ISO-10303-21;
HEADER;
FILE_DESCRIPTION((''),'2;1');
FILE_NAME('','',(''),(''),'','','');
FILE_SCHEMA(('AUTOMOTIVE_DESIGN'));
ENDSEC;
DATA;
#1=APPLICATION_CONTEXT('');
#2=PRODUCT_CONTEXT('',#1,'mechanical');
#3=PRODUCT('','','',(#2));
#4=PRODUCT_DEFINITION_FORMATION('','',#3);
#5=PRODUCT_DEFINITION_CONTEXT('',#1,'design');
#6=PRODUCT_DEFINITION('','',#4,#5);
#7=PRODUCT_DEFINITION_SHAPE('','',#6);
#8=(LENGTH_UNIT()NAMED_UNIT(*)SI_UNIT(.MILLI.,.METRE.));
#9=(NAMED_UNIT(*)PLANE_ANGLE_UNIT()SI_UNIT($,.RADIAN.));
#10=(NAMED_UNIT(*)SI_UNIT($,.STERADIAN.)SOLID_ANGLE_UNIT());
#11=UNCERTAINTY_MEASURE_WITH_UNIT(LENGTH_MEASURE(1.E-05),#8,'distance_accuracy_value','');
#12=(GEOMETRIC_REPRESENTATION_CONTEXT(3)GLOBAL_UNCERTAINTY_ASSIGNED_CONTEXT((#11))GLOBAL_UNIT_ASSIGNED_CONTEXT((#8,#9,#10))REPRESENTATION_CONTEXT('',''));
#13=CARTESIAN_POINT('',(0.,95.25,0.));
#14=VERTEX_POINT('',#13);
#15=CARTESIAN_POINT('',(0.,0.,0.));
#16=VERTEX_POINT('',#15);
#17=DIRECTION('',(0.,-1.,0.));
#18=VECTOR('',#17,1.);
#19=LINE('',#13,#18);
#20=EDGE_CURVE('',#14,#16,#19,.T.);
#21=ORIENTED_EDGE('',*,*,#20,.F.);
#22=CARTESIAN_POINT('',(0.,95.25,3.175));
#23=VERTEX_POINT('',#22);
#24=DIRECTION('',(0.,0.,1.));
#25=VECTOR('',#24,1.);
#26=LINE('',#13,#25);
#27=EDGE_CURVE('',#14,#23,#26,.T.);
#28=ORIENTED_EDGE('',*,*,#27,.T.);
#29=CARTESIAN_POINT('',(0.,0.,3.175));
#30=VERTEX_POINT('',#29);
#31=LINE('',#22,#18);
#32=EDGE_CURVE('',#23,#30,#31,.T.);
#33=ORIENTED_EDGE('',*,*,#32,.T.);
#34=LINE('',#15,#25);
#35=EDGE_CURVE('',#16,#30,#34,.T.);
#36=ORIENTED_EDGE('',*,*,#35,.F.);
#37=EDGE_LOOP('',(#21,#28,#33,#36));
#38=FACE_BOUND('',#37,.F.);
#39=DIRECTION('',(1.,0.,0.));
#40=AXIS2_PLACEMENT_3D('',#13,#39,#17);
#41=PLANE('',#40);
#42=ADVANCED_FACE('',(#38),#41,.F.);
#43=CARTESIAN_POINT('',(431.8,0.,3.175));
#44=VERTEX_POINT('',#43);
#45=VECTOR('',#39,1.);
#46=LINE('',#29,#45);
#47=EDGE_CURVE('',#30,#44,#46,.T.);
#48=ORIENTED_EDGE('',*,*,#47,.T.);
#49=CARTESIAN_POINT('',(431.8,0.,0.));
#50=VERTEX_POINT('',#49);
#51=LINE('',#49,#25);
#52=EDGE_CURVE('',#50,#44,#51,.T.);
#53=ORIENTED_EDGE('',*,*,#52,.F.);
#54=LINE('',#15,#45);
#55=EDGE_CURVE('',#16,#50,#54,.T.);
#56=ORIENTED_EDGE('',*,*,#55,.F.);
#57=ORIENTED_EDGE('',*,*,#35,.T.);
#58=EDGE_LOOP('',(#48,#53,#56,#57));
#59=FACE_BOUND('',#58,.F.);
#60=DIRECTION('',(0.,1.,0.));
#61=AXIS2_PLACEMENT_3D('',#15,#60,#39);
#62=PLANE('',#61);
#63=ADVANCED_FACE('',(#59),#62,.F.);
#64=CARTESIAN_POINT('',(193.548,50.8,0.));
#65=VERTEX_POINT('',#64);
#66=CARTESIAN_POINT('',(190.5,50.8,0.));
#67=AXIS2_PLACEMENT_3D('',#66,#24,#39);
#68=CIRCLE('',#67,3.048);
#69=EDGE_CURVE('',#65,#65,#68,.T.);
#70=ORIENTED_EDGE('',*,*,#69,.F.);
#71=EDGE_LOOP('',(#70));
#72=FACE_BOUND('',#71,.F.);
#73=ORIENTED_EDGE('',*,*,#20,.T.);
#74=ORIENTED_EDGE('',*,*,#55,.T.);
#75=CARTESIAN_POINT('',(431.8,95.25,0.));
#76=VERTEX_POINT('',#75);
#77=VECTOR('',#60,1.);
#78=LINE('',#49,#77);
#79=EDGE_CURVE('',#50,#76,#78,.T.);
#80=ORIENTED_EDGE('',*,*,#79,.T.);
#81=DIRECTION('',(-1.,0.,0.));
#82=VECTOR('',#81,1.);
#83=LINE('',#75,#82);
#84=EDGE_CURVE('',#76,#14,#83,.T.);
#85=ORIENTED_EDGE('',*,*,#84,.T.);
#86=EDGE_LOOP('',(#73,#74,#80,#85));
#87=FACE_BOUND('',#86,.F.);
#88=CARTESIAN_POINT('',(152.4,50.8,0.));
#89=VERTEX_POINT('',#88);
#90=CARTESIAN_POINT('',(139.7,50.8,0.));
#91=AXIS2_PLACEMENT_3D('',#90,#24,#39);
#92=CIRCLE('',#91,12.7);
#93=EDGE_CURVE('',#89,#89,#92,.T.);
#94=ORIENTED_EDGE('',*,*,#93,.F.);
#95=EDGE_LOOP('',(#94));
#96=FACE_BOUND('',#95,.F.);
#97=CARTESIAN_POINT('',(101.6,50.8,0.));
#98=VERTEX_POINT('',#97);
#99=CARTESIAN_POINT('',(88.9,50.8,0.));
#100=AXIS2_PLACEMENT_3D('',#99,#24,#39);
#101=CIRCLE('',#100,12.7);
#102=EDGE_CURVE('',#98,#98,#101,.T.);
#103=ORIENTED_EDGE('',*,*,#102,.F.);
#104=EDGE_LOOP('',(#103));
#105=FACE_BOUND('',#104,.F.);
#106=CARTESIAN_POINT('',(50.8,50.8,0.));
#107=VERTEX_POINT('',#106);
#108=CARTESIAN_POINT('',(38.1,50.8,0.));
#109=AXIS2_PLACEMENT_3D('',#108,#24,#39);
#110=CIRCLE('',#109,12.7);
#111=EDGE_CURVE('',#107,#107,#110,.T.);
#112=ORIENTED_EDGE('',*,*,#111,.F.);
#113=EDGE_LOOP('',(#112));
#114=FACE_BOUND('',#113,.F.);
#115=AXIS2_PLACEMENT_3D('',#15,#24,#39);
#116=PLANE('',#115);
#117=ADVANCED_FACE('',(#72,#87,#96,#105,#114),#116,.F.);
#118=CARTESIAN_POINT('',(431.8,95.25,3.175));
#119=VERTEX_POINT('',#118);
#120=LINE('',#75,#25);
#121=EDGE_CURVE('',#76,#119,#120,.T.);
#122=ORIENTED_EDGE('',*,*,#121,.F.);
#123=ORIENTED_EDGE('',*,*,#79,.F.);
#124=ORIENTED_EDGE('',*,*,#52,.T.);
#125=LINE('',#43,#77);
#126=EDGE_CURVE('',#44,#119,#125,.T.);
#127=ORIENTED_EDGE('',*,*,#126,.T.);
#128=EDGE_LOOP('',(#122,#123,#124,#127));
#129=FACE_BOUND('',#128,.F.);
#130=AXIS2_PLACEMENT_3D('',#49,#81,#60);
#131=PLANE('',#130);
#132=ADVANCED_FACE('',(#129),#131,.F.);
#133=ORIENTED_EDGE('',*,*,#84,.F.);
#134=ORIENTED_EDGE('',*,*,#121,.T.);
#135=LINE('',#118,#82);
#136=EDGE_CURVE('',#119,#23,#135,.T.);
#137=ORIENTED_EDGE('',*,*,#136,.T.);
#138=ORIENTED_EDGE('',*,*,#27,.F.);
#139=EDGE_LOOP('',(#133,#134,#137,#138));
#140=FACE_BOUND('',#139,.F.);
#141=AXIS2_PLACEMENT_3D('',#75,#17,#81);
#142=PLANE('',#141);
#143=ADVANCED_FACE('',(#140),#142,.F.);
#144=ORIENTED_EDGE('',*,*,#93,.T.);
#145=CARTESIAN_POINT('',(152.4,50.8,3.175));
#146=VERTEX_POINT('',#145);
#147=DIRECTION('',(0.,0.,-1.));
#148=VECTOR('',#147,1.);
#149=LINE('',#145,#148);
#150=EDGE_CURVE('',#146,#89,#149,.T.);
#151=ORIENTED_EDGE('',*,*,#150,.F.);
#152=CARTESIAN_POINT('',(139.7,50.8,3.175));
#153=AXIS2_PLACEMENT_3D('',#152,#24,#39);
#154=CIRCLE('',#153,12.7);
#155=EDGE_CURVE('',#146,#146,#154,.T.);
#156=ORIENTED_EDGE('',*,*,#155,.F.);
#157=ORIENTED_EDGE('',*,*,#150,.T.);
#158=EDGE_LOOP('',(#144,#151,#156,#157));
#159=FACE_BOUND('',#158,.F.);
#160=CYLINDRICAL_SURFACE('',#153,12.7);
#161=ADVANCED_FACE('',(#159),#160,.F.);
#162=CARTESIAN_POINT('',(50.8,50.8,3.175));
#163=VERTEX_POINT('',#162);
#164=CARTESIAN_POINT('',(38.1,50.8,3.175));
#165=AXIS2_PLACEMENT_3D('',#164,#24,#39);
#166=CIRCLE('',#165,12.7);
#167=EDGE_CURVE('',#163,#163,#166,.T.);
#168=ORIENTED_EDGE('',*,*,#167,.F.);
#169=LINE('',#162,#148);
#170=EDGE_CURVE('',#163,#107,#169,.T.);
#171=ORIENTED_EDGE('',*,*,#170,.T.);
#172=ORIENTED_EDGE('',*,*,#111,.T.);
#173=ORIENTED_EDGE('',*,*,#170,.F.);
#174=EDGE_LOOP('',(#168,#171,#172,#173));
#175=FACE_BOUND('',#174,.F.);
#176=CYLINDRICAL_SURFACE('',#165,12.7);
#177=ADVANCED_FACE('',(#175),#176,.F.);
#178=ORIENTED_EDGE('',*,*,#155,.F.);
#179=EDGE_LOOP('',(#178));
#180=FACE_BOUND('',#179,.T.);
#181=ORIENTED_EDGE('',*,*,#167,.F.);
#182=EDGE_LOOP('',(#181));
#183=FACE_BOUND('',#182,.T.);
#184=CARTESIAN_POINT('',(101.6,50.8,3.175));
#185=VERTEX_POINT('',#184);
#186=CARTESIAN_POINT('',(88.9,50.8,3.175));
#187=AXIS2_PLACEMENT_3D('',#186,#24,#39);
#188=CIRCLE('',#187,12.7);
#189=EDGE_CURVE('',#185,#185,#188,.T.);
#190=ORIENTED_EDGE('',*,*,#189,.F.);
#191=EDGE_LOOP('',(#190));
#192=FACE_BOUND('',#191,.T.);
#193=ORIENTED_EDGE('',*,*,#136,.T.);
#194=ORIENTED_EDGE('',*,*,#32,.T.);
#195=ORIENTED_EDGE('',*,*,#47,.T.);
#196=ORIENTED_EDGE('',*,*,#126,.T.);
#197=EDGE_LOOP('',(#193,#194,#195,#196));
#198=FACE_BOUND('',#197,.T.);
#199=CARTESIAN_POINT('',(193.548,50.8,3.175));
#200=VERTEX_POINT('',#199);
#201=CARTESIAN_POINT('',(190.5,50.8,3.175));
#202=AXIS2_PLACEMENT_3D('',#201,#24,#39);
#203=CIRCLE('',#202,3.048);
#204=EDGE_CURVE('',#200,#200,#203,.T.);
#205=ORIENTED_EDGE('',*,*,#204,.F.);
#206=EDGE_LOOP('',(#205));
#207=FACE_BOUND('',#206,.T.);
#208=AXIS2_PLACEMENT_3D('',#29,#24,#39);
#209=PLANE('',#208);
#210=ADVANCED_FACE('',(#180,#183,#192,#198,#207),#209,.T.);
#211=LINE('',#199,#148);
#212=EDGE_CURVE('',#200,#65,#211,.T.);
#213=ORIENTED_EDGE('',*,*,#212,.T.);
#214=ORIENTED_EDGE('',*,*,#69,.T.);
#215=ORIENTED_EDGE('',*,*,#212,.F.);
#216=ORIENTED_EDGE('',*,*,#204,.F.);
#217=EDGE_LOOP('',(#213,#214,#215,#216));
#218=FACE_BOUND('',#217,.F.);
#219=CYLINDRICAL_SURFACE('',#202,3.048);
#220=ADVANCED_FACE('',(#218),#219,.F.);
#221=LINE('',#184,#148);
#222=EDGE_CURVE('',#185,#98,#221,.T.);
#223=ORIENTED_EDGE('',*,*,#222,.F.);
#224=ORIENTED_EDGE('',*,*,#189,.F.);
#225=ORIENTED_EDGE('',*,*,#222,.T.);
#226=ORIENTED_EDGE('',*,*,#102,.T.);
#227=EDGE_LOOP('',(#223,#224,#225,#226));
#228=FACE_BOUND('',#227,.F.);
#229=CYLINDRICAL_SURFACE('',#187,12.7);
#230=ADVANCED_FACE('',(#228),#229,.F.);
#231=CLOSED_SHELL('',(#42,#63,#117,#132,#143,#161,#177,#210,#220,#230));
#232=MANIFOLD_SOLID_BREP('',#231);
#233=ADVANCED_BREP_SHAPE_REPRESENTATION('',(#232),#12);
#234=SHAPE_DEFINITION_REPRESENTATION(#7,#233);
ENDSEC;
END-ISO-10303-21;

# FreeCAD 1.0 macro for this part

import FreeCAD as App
import Part
import Sketcher

V = App.Vector
Q = App.Units.Quantity


def add_polygon(sketch, points):
    """Adds a closed chain of lines whose ends are joined by coincident constraints."""
    first, n = sketch.GeometryCount, len(points)
    for a, b in zip(points, points[1:] + points[:1]):
        sketch.addGeometry(Part.LineSegment(App.Vector(*a, 0), App.Vector(*b, 0)), False)
    for i in range(n):
        sketch.addConstraint(Sketcher.Constraint("Coincident", first + i, 2, first + (i + 1) % n, 1))

doc = App.newDocument("Part")
body = doc.addObject("PartDesign::Body", "Body")

# Sketch on XY plane
sketch1 = doc.addObject("Sketcher::SketchObject", "Sketch")
body.addObject(sketch1)
sketch1.AttachmentSupport = (doc.XY_Plane, [""])
sketch1.MapMode = "FlatFace"
add_polygon(sketch1, [(0, 95.25), (0, 0), (431.8, 0), (431.8, 95.25)])  # lines 0-3
sketch1.addConstraint(Sketcher.Constraint("Vertical", 0))
sketch1.addConstraint(Sketcher.Constraint("Horizontal", 1))
sketch1.addConstraint(Sketcher.Constraint("Vertical", 2))
sketch1.addConstraint(Sketcher.Constraint("Horizontal", 3))
sketch1.addConstraint(Sketcher.Constraint("Coincident", 0, 2, -1, 1))
sketch1.addConstraint(Sketcher.Constraint("DistanceX", 1, 1, 1, 2, Q("17 in")))
sketch1.addConstraint(Sketcher.Constraint("DistanceY", 0, 2, 0, 1, Q("3.75 in")))
pad1 = doc.addObject("PartDesign::Pad", "Pad")
body.addObject(pad1)
pad1.Profile = sketch1
pad1.Length = Q("0.125 in")

# Sketch on XY plane
sketch2 = doc.addObject("Sketcher::SketchObject", "Sketch001")
body.addObject(sketch2)
sketch2.AttachmentSupport = (doc.XY_Plane, [""])
sketch2.MapMode = "FlatFace"
sketch2.AttachmentOffset = App.Placement(V(0, 0, 0.125 * 25.4), App.Rotation())
sketch2.addGeometry(Part.Circle(V(38.1, 50.8, 0), V(0, 0, 1), 12.7), False)
sketch2.addGeometry(Part.Circle(V(88.9, 50.8, 0), V(0, 0, 1), 12.7), False)
sketch2.addGeometry(Part.Circle(V(139.7, 50.8, 0), V(0, 0, 1), 12.7), False)
sketch2.addGeometry(Part.Circle(V(190.5, 50.8, 0), V(0, 0, 1), 3.048), False)
sketch2.addConstraint(Sketcher.Constraint("Equal", 0, 1))
sketch2.addConstraint(Sketcher.Constraint("Equal", 1, 2))
sketch2.addConstraint(Sketcher.Constraint("Horizontal", 0, 3, 1, 3))
sketch2.addConstraint(Sketcher.Constraint("Horizontal", 1, 3, 2, 3))
sketch2.addConstraint(Sketcher.Constraint("Horizontal", 2, 3, 3, 3))
sketch2.addConstraint(Sketcher.Constraint("Diameter", 0, Q("1 in")))
sketch2.addConstraint(Sketcher.Constraint("Diameter", 3, Q("0.24 in")))
sketch2.addConstraint(Sketcher.Constraint("DistanceY", -1, 1, 0, 3, Q("2 in")))
sketch2.addConstraint(Sketcher.Constraint("DistanceX", 0, 3, 1, 3, Q("2 in")))
sketch2.addConstraint(Sketcher.Constraint("DistanceX", 1, 3, 2, 3, Q("2 in")))
sketch2.addConstraint(Sketcher.Constraint("DistanceX", 2, 3, 3, 3, Q("2 in")))
sketch2.addConstraint(Sketcher.Constraint("DistanceX", -1, 1, 0, 3, Q("1.5 in")))
pocket1 = doc.addObject("PartDesign::Pocket", "Pocket")
body.addObject(pocket1)
pocket1.Profile = sketch2
pocket1.Length = Q("1 in")

doc.recompute()
